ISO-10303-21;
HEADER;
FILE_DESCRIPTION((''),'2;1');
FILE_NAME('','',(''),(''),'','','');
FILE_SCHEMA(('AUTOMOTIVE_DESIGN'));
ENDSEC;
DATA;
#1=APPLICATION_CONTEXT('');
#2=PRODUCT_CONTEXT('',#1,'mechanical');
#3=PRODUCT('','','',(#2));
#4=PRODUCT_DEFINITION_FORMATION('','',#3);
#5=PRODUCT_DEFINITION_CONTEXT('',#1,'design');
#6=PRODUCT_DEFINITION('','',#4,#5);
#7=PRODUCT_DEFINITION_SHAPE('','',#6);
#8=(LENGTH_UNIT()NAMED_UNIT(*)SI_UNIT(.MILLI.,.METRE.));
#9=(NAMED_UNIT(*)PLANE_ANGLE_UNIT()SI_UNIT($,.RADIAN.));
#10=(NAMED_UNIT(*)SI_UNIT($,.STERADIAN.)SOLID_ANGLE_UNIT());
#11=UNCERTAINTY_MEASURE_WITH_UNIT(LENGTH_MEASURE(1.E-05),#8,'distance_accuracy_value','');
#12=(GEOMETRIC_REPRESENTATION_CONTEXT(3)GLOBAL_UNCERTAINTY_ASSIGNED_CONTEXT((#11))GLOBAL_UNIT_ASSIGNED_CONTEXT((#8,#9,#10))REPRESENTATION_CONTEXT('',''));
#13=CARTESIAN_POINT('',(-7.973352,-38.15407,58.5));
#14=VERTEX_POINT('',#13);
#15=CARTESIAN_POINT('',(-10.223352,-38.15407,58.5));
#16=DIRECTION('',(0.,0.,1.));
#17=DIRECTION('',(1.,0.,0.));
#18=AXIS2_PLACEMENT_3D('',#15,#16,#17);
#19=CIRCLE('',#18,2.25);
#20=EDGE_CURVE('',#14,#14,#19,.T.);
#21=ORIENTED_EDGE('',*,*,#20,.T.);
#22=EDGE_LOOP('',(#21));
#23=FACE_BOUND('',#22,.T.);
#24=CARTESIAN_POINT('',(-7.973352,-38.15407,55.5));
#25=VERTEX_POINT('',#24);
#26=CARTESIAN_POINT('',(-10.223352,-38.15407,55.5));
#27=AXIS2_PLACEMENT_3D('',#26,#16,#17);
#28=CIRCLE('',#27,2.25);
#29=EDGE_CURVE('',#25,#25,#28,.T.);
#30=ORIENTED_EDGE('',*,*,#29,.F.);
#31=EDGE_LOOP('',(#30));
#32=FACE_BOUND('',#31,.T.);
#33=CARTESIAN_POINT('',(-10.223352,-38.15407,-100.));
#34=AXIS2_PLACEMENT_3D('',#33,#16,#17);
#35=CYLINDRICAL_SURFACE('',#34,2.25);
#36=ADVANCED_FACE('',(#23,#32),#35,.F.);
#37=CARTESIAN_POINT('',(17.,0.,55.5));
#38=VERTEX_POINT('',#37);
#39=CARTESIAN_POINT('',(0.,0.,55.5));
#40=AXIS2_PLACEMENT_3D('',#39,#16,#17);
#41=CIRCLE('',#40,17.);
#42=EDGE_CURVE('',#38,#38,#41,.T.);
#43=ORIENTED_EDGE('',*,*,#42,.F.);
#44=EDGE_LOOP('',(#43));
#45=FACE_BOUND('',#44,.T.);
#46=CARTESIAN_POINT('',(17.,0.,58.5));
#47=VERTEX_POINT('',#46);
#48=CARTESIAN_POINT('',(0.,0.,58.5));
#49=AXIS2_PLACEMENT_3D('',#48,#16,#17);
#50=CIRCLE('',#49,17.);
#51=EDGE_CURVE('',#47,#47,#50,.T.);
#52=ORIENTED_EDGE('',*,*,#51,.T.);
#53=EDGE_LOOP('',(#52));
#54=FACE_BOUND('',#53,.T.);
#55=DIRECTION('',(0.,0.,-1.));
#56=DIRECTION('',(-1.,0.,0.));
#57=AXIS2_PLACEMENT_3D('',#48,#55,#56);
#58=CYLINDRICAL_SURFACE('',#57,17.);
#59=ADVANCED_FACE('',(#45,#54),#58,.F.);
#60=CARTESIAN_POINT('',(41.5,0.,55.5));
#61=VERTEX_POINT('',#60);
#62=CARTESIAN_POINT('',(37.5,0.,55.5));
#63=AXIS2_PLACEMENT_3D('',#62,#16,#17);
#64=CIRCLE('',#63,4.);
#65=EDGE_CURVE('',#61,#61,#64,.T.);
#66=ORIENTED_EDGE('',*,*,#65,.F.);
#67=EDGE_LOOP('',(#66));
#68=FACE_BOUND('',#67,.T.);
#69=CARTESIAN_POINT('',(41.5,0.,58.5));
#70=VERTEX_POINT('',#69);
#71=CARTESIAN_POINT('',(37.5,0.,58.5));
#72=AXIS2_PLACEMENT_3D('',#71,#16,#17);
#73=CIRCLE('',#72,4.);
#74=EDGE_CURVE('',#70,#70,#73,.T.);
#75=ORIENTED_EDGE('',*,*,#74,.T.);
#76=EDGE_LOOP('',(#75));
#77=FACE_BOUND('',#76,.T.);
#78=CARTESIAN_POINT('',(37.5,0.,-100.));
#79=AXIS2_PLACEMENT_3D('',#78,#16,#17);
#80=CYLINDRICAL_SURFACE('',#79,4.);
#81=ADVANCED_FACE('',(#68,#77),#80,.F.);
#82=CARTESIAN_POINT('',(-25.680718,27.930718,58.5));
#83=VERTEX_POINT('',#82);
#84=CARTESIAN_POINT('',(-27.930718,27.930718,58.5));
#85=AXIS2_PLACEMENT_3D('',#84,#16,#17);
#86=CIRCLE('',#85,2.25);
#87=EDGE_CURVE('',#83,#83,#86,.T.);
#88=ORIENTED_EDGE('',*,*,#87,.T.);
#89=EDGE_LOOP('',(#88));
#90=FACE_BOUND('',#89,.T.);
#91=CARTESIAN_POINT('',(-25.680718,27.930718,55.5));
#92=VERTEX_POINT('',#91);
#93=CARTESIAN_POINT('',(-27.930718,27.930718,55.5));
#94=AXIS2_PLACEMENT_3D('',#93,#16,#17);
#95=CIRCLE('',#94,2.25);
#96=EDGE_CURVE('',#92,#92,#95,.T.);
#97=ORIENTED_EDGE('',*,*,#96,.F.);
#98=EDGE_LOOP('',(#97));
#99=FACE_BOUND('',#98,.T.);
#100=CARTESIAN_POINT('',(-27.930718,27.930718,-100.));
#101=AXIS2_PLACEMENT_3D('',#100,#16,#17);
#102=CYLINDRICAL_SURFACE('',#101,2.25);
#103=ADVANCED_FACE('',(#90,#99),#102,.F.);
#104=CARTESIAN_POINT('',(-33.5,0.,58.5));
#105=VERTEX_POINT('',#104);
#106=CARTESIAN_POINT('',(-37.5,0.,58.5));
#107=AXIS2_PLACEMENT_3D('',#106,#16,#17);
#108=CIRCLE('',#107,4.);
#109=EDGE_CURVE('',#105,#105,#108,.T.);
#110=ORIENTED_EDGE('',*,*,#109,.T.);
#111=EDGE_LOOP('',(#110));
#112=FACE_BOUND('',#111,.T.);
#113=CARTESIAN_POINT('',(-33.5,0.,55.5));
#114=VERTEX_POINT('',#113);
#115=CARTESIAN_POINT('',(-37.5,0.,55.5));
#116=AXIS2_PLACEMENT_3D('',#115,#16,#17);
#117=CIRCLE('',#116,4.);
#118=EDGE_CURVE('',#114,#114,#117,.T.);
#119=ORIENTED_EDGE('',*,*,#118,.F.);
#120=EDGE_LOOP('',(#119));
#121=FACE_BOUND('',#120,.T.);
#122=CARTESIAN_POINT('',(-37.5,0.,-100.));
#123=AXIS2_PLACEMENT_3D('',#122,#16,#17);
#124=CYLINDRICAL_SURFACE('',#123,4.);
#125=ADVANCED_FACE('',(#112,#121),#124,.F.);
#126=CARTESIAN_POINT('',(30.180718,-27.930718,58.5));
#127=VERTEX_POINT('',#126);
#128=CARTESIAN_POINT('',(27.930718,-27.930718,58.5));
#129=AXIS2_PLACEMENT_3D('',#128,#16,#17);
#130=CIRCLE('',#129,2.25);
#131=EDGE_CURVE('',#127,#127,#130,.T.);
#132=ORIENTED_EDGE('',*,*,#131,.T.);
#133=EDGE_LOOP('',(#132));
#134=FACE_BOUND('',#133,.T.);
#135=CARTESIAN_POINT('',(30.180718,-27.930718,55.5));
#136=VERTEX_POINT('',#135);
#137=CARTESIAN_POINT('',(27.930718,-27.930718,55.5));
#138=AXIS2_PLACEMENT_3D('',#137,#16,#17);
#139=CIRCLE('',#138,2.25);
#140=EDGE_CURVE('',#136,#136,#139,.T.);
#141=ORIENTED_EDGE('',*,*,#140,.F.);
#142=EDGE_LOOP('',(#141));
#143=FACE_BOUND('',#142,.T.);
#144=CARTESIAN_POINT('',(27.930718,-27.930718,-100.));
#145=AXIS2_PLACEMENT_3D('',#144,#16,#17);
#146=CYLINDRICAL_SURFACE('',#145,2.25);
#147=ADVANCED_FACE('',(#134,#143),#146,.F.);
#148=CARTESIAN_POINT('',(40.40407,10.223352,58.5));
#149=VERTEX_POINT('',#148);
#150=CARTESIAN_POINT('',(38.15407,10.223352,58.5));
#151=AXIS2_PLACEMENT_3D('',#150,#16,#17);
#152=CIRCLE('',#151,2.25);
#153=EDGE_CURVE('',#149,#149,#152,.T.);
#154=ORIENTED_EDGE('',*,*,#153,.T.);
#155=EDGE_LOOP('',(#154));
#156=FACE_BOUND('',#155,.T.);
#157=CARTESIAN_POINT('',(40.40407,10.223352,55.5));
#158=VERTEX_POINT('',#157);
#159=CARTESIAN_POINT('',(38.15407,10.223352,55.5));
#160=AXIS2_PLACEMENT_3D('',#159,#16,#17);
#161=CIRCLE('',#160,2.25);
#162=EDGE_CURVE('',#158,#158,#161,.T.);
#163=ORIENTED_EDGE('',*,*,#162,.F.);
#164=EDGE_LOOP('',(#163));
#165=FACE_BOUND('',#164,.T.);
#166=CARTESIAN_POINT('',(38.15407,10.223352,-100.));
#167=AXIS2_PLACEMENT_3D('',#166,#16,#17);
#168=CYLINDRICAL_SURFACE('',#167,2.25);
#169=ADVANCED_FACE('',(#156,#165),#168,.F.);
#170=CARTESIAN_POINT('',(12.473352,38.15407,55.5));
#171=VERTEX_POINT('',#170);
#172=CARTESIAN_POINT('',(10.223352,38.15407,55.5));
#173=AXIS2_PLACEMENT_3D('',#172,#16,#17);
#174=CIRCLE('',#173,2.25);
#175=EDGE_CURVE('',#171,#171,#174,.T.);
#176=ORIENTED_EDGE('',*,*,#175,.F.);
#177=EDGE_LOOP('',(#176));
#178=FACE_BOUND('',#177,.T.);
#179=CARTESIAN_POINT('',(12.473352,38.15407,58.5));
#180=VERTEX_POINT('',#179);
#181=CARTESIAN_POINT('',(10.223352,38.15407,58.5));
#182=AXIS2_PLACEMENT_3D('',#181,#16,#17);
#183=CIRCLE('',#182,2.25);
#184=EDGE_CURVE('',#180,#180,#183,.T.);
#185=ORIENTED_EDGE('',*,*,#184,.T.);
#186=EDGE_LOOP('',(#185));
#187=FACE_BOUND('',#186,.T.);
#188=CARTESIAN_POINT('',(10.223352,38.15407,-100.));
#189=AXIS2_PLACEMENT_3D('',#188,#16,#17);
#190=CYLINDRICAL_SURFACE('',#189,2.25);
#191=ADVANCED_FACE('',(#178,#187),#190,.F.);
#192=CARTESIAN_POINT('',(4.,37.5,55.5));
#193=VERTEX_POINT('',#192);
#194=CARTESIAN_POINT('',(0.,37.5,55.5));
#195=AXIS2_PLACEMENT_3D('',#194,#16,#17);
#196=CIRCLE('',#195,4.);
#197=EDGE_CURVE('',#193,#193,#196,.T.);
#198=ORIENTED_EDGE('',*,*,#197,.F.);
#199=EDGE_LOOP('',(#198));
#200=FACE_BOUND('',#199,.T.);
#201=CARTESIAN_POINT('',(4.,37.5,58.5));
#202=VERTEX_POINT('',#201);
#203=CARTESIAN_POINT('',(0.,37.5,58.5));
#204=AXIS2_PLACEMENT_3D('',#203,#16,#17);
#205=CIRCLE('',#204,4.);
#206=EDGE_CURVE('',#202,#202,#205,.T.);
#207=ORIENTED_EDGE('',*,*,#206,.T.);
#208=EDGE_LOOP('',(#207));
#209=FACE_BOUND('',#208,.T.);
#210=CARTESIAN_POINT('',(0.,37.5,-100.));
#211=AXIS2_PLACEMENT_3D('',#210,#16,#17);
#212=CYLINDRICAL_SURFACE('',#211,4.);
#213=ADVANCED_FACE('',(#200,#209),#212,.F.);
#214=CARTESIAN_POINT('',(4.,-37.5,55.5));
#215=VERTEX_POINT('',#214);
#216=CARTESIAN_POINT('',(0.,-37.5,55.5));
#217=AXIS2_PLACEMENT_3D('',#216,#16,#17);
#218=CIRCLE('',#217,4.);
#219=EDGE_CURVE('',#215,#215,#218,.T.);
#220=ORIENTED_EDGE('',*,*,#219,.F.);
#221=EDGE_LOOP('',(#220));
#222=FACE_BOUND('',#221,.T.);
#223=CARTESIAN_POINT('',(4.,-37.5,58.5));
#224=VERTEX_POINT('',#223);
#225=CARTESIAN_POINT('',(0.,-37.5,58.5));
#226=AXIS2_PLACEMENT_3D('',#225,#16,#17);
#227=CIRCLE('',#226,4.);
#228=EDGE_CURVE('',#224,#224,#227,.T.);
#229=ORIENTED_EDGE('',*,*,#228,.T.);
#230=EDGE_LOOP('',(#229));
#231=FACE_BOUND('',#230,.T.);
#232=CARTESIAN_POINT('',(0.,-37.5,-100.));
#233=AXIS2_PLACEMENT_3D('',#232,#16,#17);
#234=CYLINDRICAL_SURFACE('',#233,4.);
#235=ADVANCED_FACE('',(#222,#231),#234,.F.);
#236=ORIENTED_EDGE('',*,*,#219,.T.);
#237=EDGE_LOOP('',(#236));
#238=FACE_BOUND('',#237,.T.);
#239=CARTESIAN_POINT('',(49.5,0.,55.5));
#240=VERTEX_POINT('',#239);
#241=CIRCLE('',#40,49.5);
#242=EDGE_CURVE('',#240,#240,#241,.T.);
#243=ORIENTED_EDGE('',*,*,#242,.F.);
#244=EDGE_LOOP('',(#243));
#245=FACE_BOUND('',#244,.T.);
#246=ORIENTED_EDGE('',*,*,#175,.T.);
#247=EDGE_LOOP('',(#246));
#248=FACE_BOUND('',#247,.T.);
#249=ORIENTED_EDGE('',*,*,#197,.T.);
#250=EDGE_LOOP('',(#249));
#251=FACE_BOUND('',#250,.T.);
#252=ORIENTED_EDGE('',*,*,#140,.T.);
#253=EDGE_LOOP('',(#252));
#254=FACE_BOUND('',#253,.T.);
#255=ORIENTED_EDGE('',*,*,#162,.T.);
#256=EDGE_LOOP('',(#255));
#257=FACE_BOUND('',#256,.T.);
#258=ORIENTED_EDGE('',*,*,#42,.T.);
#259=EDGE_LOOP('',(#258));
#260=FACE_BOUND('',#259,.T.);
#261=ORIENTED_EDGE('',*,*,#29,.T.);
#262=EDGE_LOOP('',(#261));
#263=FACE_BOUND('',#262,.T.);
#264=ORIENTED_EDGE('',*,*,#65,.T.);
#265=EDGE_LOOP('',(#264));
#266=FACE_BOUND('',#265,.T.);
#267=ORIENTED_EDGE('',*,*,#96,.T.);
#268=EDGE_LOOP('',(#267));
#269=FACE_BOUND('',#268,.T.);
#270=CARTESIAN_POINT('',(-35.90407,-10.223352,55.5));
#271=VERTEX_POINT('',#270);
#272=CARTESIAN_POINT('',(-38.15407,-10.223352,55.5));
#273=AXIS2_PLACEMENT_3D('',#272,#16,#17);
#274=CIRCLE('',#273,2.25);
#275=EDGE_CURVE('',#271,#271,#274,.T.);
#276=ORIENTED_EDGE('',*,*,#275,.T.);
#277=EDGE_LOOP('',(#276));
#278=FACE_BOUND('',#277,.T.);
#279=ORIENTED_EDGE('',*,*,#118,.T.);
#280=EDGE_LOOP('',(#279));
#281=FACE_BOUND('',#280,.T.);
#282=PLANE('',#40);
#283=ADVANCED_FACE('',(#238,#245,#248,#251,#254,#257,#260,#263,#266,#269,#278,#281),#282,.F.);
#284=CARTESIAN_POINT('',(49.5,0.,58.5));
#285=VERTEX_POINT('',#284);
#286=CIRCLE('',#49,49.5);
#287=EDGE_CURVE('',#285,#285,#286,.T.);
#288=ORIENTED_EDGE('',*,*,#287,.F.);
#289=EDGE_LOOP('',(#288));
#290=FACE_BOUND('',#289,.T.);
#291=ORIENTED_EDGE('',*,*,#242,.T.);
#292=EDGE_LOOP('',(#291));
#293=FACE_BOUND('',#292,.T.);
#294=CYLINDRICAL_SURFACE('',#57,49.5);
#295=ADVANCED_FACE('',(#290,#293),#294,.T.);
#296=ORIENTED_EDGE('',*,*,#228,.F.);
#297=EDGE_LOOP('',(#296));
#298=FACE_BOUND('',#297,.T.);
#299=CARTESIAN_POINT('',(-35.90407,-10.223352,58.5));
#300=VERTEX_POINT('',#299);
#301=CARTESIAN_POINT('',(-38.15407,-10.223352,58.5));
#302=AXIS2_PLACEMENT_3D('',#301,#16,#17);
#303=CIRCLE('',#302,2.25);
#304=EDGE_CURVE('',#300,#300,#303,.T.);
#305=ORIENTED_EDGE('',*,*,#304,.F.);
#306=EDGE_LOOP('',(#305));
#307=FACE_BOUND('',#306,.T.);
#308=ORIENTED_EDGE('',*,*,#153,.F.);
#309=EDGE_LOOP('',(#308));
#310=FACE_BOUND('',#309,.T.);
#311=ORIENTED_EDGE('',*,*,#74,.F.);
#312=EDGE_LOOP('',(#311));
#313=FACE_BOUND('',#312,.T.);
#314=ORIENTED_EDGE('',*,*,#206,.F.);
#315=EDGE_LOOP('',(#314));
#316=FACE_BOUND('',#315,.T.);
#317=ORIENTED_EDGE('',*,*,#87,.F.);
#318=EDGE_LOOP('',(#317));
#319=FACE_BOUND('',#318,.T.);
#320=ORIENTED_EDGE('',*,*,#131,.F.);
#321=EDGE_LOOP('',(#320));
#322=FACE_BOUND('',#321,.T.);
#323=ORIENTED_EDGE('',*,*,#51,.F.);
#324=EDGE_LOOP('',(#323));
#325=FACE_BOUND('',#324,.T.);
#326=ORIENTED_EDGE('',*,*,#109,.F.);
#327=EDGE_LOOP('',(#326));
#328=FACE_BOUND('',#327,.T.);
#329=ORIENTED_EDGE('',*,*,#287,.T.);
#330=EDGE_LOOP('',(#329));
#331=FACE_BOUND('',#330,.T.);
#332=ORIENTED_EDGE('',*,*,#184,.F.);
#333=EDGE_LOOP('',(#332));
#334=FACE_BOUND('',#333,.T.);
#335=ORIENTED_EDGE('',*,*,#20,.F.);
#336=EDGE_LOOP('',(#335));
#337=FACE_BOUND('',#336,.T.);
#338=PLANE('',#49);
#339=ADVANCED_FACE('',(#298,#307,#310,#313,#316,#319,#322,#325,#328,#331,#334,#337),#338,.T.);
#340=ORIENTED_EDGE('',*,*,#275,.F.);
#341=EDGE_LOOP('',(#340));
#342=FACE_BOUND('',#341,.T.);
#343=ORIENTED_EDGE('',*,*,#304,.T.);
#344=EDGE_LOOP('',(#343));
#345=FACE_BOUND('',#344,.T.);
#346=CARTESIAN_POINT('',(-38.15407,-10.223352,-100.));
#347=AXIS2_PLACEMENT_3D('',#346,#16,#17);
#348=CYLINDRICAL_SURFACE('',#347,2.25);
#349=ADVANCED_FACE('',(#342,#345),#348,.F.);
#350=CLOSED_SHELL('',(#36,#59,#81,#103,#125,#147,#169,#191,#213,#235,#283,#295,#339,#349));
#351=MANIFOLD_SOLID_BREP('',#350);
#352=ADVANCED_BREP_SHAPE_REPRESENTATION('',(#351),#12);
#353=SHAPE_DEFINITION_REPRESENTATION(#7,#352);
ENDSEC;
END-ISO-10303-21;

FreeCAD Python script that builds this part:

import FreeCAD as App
import Part
import Sketcher
from FreeCAD import Vector
Q = App.Units.Quantity

doc = App.newDocument("Part")
params = doc.addObject("Spreadsheet::Sheet", "Params")
for row, (alias, value) in enumerate([
    ("sketch1_diameter", "99 mm"),
    ("sketch1_diameter2", "34 mm"),
    ("pad1_length", "3 mm"),
    ("sketch2_diameter", "4.5 mm"),
    ("pocket1_length", "200 mm"),
    ("sketch3_diameter", "8 mm"),
    ("pocket2_length", "200 mm"),
], start=1):
    params.set(f"A{row}", alias)
    params.set(f"B{row}", "=" + value)
    params.setAlias(f"B{row}", alias)

body = doc.addObject("PartDesign::Body", "Body")

# Sketch on XY plane
sketch1 = body.newObject("Sketcher::SketchObject", "Sketch")
sketch1.AttachmentSupport = (doc.getObject("XY_Plane"), [""])
sketch1.MapMode = "FlatFace"
sketch1.AttachmentOffset = App.Placement(Vector(0, 0, 55.5), App.Rotation())
sketch1.addGeometry([
    Part.Circle(Vector(0, 0, 0), Vector(0, 0, 1), 50),
    Part.Circle(Vector(0, 0, 0), Vector(0, 0, 1), 17),
], False)
sketch1.addConstraint([
    Sketcher.Constraint("Coincident", 0, 3, -1, 1),
    Sketcher.Constraint("Coincident", 1, 3, -1, 1),
    Sketcher.Constraint("Diameter", 0, Q("99 mm")),
    Sketcher.Constraint("Diameter", 1, Q("34 mm")),
])
sketch1.setExpression("Constraints[2]", "Params.sketch1_diameter")
sketch1.setExpression("Constraints[3]", "Params.sketch1_diameter2")
pad1 = body.newObject("PartDesign::Pad", "Pad")
pad1.Profile = sketch1
pad1.setExpression("Length", "Params.pad1_length")

# Sketch on XY plane
sketch2 = body.newObject("Sketcher::SketchObject", "Sketch001")
sketch2.AttachmentSupport = (doc.getObject("XY_Plane"), [""])
sketch2.MapMode = "FlatFace"
sketch2.addGeometry([
    Part.Circle(Vector(37.5, 0, 0), Vector(0, 0, 1), 2.2),  # 0
    Part.Circle(Vector(0, 37.5, 0), Vector(0, 0, 1), 2.2),  # 1
    Part.Circle(Vector(-37.5, 0, 0), Vector(0, 0, 1), 2.2),  # 2
    Part.Circle(Vector(0, -37.5, 0), Vector(0, 0, 1), 2.2),  # 3
    Part.Circle(Vector(38.2, 10.2, 0), Vector(0, 0, 1), 2.2),  # 4
    Part.Circle(Vector(10.2, 38.2, 0), Vector(0, 0, 1), 2.2),  # 5
    Part.Circle(Vector(-27.9, 27.9, 0), Vector(0, 0, 1), 2.2),  # 6
    Part.Circle(Vector(-38.2, -10.2, 0), Vector(0, 0, 1), 2.2),  # 7
    Part.Circle(Vector(-10.2, -38.2, 0), Vector(0, 0, 1), 2.2),  # 8
    Part.Circle(Vector(27.9, -27.9, 0), Vector(0, 0, 1), 2.2),  # 9
], False)
sketch2.addConstraint([
    Sketcher.Constraint("Equal", 0, 1),
    Sketcher.Constraint("Equal", 1, 2),
    Sketcher.Constraint("Equal", 2, 3),
    Sketcher.Constraint("Equal", 3, 4),
    Sketcher.Constraint("Equal", 4, 5),
    Sketcher.Constraint("Equal", 5, 6),
    Sketcher.Constraint("Equal", 6, 7),
    Sketcher.Constraint("Equal", 7, 8),
    Sketcher.Constraint("Equal", 8, 9),
    Sketcher.Constraint("Symmetric", 0, 3, 2, 3, -1, 1),
    Sketcher.Constraint("Symmetric", 1, 3, 3, 3, -1, 1),
    Sketcher.Constraint("Symmetric", 4, 3, 7, 3, -1, 1),
    Sketcher.Constraint("Symmetric", 5, 3, 8, 3, -1, 1),
    Sketcher.Constraint("Symmetric", 6, 3, 9, 3, -1, 1),
    Sketcher.Constraint("PointOnObject", 0, 3, -1),
    Sketcher.Constraint("PointOnObject", 1, 3, -2),
    Sketcher.Constraint("Diameter", 0, Q("4.5 mm")),
    Sketcher.Constraint("DistanceX", 2, 3, 0, 3, Q("75 mm")),
    Sketcher.Constraint("DistanceY", 3, 3, 1, 3, Q("75 mm")),
    Sketcher.Constraint("DistanceX", -1, 1, 4, 3, Q("38.15407 mm")),
    Sketcher.Constraint("DistanceY", -1, 1, 5, 3, Q("38.15407 mm")),
    Sketcher.Constraint("DistanceX", 6, 3, 5, 3, Q("38.15407 mm")),
    Sketcher.Constraint("DistanceY", 7, 3, 6, 3, Q("38.15407 mm")),
    Sketcher.Constraint("DistanceY", -1, 1, 4, 3, Q("10.223352 mm")),
    Sketcher.Constraint("DistanceX", -1, 1, 5, 3, Q("10.223352 mm")),
])
sketch2.setExpression("Constraints[16]", "Params.sketch2_diameter")
pocket1 = body.newObject("PartDesign::Pocket", "Pocket")
pocket1.Profile = sketch2
pocket1.setExpression("Length", "Params.pocket1_length")
pocket1.Midplane = True

# Sketch on XY plane
sketch3 = body.newObject("Sketcher::SketchObject", "Sketch002")
sketch3.AttachmentSupport = (doc.getObject("XY_Plane"), [""])
sketch3.MapMode = "FlatFace"
sketch3.addGeometry([
    Part.Circle(Vector(37.5, 0, 0), Vector(0, 0, 1), 4),
    Part.Circle(Vector(0, 37.5, 0), Vector(0, 0, 1), 4),
    Part.Circle(Vector(-37.5, 0, 0), Vector(0, 0, 1), 4),
    Part.Circle(Vector(0, -37.5, 0), Vector(0, 0, 1), 4),
], False)
sketch3.addConstraint([
    Sketcher.Constraint("Equal", 0, 1),
    Sketcher.Constraint("Equal", 1, 2),
    Sketcher.Constraint("Equal", 2, 3),
    Sketcher.Constraint("Symmetric", 0, 3, 2, 3, -1, 1),
    Sketcher.Constraint("Symmetric", 1, 3, 3, 3, -1, 1),
    Sketcher.Constraint("PointOnObject", 0, 3, -1),
    Sketcher.Constraint("PointOnObject", 1, 3, -2),
    Sketcher.Constraint("Diameter", 0, Q("8 mm")),
    Sketcher.Constraint("DistanceX", 2, 3, 0, 3, Q("75 mm")),
    Sketcher.Constraint("DistanceY", 3, 3, 1, 3, Q("75 mm")),
])
sketch3.setExpression("Constraints[7]", "Params.sketch3_diameter")
pocket2 = body.newObject("PartDesign::Pocket", "Pocket001")
pocket2.Profile = sketch3
pocket2.setExpression("Length", "Params.pocket2_length")
pocket2.Midplane = True

doc.recompute()
